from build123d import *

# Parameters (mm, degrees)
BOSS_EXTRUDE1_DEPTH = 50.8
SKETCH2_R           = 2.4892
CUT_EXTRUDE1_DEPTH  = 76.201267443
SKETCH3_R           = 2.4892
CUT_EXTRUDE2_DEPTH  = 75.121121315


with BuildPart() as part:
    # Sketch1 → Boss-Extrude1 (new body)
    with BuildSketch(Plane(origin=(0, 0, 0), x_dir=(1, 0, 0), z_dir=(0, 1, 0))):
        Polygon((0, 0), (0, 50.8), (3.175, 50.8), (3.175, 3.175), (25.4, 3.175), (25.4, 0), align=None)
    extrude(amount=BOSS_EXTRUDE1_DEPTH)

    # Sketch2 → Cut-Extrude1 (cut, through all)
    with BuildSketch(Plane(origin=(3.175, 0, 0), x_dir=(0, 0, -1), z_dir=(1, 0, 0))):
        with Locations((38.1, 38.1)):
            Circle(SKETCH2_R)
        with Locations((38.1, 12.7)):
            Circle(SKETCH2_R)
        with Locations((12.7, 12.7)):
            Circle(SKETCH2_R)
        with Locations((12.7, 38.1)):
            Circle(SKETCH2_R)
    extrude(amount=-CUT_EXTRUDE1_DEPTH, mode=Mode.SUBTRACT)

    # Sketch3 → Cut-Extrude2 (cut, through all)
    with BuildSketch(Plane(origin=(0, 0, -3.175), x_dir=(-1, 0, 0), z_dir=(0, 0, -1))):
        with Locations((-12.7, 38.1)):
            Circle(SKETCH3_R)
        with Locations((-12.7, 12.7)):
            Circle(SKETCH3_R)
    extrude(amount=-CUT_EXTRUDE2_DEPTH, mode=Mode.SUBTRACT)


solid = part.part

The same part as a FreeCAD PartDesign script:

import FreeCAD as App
import Part
import Sketcher
Q = App.Units.Quantity

doc = App.newDocument("Part")
body = doc.addObject("PartDesign::Body", "Body")

# Sketch on XZ plane
sketch1 = body.newObject("Sketcher::SketchObject", "Sketch")
sketch1.AttachmentSupport = (doc.getObject("XZ_Plane"), [""])
sketch1.MapMode = "FlatFace"
sketch1.addGeometry([
    Part.LineSegment(App.Vector(0, -50.8, 0), App.Vector(0, 0, 0)),  # 0
    Part.LineSegment(App.Vector(0, 0, 0), App.Vector(25.4, 0, 0)),  # 1
    Part.LineSegment(App.Vector(25.4, 0, 0), App.Vector(25.4, -3.2, 0)),  # 2
    Part.LineSegment(App.Vector(25.4, -3.2, 0), App.Vector(3.2, -3.2, 0)),  # 3
    Part.LineSegment(App.Vector(3.2, -3.2, 0), App.Vector(3.2, -50.8, 0)),  # 4
    Part.LineSegment(App.Vector(3.2, -50.8, 0), App.Vector(0, -50.8, 0)),  # 5
], False)
sketch1.addConstraint([
    Sketcher.Constraint("Coincident", 0, 2, 1, 1),
    Sketcher.Constraint("Coincident", 1, 2, 2, 1),
    Sketcher.Constraint("Coincident", 2, 2, 3, 1),
    Sketcher.Constraint("Coincident", 3, 2, 4, 1),
    Sketcher.Constraint("Coincident", 4, 2, 5, 1),
    Sketcher.Constraint("Coincident", 5, 2, 0, 1),
    Sketcher.Constraint("Vertical", 0),
    Sketcher.Constraint("Horizontal", 1),
    Sketcher.Constraint("Vertical", 2),
    Sketcher.Constraint("Horizontal", 3),
    Sketcher.Constraint("Vertical", 4),
    Sketcher.Constraint("Horizontal", 5),
    Sketcher.Constraint("Coincident", 0, 2, -1, 1),
    Sketcher.Constraint("Equal", 5, 2),
    Sketcher.Constraint("DistanceX", 1, 1, 1, 2, Q("1 in")),
    Sketcher.Constraint("DistanceY", 0, 1, 0, 2, Q("2 in")),
    Sketcher.Constraint("DistanceX", 3, 2, 3, 1, Q("0.875 in")),
])
pad1 = body.newObject("PartDesign::Pad", "Pad")
pad1.Profile = sketch1
pad1.Length = Q("2 in")
pad1.Reversed = True

# Sketch on YZ plane
sketch2 = body.newObject("Sketcher::SketchObject", "Sketch001")
sketch2.AttachmentSupport = (doc.getObject("YZ_Plane"), [""])
sketch2.MapMode = "FlatFace"
sketch2.AttachmentOffset = App.Placement(App.Vector(0, 0, 0.125 * 25.4), App.Rotation())
sketch2.addGeometry([
    Part.Circle(App.Vector(38.1, -38.1, 0), App.Vector(0, 0, 1), 2.5),
    Part.Circle(App.Vector(12.7, -38.1, 0), App.Vector(0, 0, 1), 2.5),
    Part.Circle(App.Vector(12.7, -12.7, 0), App.Vector(0, 0, 1), 2.5),
    Part.Circle(App.Vector(38.1, -12.7, 0), App.Vector(0, 0, 1), 2.5),
], False)
sketch2.addConstraint([
    Sketcher.Constraint("Equal", 0, 1),
    Sketcher.Constraint("Equal", 1, 2),
    Sketcher.Constraint("Equal", 2, 3),
    Sketcher.Constraint("Horizontal", 0, 3, 1, 3),
    Sketcher.Constraint("Horizontal", 2, 3, 3, 3),
    Sketcher.Constraint("Vertical", 1, 3, 2, 3),
    Sketcher.Constraint("Vertical", 0, 3, 3, 3),
    Sketcher.Constraint("Diameter", 0, Q("0.196 in")),
    Sketcher.Constraint("DistanceX", 1, 3, 0, 3, Q("1 in")),
    Sketcher.Constraint("DistanceY", 1, 3, 2, 3, Q("1 in")),
    Sketcher.Constraint("DistanceX", -1, 1, 0, 3, Q("1.5 in")),
    Sketcher.Constraint("DistanceY", 0, 3, -1, 1, Q("1.5 in")),
])
pocket1 = body.newObject("PartDesign::Pocket", "Pocket")
pocket1.Profile = sketch2
pocket1.Type = "ThroughAll"

# Sketch on XY plane
sketch3 = body.newObject("Sketcher::SketchObject", "Sketch002")
sketch3.AttachmentSupport = (doc.getObject("XY_Plane"), [""])
sketch3.MapMode = "FlatFace"
sketch3.AttachmentOffset = App.Placement(App.Vector(0, 0, -0.125 * 25.4), App.Rotation())
sketch3.addGeometry([
    Part.Circle(App.Vector(12.7, 38.1, 0), App.Vector(0, 0, 1), 2.5),
    Part.Circle(App.Vector(12.7, 12.7, 0), App.Vector(0, 0, 1), 2.5),
], False)
sketch3.addConstraint([
    Sketcher.Constraint("Equal", 0, 1),
    Sketcher.Constraint("Vertical", 0, 3, 1, 3),
    Sketcher.Constraint("Diameter", 0, Q("0.196 in")),
    Sketcher.Constraint("DistanceY", 1, 3, 0, 3, Q("1 in")),
    Sketcher.Constraint("DistanceX", -1, 1, 0, 3, Q("0.5 in")),
    Sketcher.Constraint("DistanceY", -1, 1, 0, 3, Q("1.5 in")),
])
pocket2 = body.newObject("PartDesign::Pocket", "Pocket001")
pocket2.Profile = sketch3
pocket2.Type = "ThroughAll"
pocket2.Reversed = True

doc.recompute()
